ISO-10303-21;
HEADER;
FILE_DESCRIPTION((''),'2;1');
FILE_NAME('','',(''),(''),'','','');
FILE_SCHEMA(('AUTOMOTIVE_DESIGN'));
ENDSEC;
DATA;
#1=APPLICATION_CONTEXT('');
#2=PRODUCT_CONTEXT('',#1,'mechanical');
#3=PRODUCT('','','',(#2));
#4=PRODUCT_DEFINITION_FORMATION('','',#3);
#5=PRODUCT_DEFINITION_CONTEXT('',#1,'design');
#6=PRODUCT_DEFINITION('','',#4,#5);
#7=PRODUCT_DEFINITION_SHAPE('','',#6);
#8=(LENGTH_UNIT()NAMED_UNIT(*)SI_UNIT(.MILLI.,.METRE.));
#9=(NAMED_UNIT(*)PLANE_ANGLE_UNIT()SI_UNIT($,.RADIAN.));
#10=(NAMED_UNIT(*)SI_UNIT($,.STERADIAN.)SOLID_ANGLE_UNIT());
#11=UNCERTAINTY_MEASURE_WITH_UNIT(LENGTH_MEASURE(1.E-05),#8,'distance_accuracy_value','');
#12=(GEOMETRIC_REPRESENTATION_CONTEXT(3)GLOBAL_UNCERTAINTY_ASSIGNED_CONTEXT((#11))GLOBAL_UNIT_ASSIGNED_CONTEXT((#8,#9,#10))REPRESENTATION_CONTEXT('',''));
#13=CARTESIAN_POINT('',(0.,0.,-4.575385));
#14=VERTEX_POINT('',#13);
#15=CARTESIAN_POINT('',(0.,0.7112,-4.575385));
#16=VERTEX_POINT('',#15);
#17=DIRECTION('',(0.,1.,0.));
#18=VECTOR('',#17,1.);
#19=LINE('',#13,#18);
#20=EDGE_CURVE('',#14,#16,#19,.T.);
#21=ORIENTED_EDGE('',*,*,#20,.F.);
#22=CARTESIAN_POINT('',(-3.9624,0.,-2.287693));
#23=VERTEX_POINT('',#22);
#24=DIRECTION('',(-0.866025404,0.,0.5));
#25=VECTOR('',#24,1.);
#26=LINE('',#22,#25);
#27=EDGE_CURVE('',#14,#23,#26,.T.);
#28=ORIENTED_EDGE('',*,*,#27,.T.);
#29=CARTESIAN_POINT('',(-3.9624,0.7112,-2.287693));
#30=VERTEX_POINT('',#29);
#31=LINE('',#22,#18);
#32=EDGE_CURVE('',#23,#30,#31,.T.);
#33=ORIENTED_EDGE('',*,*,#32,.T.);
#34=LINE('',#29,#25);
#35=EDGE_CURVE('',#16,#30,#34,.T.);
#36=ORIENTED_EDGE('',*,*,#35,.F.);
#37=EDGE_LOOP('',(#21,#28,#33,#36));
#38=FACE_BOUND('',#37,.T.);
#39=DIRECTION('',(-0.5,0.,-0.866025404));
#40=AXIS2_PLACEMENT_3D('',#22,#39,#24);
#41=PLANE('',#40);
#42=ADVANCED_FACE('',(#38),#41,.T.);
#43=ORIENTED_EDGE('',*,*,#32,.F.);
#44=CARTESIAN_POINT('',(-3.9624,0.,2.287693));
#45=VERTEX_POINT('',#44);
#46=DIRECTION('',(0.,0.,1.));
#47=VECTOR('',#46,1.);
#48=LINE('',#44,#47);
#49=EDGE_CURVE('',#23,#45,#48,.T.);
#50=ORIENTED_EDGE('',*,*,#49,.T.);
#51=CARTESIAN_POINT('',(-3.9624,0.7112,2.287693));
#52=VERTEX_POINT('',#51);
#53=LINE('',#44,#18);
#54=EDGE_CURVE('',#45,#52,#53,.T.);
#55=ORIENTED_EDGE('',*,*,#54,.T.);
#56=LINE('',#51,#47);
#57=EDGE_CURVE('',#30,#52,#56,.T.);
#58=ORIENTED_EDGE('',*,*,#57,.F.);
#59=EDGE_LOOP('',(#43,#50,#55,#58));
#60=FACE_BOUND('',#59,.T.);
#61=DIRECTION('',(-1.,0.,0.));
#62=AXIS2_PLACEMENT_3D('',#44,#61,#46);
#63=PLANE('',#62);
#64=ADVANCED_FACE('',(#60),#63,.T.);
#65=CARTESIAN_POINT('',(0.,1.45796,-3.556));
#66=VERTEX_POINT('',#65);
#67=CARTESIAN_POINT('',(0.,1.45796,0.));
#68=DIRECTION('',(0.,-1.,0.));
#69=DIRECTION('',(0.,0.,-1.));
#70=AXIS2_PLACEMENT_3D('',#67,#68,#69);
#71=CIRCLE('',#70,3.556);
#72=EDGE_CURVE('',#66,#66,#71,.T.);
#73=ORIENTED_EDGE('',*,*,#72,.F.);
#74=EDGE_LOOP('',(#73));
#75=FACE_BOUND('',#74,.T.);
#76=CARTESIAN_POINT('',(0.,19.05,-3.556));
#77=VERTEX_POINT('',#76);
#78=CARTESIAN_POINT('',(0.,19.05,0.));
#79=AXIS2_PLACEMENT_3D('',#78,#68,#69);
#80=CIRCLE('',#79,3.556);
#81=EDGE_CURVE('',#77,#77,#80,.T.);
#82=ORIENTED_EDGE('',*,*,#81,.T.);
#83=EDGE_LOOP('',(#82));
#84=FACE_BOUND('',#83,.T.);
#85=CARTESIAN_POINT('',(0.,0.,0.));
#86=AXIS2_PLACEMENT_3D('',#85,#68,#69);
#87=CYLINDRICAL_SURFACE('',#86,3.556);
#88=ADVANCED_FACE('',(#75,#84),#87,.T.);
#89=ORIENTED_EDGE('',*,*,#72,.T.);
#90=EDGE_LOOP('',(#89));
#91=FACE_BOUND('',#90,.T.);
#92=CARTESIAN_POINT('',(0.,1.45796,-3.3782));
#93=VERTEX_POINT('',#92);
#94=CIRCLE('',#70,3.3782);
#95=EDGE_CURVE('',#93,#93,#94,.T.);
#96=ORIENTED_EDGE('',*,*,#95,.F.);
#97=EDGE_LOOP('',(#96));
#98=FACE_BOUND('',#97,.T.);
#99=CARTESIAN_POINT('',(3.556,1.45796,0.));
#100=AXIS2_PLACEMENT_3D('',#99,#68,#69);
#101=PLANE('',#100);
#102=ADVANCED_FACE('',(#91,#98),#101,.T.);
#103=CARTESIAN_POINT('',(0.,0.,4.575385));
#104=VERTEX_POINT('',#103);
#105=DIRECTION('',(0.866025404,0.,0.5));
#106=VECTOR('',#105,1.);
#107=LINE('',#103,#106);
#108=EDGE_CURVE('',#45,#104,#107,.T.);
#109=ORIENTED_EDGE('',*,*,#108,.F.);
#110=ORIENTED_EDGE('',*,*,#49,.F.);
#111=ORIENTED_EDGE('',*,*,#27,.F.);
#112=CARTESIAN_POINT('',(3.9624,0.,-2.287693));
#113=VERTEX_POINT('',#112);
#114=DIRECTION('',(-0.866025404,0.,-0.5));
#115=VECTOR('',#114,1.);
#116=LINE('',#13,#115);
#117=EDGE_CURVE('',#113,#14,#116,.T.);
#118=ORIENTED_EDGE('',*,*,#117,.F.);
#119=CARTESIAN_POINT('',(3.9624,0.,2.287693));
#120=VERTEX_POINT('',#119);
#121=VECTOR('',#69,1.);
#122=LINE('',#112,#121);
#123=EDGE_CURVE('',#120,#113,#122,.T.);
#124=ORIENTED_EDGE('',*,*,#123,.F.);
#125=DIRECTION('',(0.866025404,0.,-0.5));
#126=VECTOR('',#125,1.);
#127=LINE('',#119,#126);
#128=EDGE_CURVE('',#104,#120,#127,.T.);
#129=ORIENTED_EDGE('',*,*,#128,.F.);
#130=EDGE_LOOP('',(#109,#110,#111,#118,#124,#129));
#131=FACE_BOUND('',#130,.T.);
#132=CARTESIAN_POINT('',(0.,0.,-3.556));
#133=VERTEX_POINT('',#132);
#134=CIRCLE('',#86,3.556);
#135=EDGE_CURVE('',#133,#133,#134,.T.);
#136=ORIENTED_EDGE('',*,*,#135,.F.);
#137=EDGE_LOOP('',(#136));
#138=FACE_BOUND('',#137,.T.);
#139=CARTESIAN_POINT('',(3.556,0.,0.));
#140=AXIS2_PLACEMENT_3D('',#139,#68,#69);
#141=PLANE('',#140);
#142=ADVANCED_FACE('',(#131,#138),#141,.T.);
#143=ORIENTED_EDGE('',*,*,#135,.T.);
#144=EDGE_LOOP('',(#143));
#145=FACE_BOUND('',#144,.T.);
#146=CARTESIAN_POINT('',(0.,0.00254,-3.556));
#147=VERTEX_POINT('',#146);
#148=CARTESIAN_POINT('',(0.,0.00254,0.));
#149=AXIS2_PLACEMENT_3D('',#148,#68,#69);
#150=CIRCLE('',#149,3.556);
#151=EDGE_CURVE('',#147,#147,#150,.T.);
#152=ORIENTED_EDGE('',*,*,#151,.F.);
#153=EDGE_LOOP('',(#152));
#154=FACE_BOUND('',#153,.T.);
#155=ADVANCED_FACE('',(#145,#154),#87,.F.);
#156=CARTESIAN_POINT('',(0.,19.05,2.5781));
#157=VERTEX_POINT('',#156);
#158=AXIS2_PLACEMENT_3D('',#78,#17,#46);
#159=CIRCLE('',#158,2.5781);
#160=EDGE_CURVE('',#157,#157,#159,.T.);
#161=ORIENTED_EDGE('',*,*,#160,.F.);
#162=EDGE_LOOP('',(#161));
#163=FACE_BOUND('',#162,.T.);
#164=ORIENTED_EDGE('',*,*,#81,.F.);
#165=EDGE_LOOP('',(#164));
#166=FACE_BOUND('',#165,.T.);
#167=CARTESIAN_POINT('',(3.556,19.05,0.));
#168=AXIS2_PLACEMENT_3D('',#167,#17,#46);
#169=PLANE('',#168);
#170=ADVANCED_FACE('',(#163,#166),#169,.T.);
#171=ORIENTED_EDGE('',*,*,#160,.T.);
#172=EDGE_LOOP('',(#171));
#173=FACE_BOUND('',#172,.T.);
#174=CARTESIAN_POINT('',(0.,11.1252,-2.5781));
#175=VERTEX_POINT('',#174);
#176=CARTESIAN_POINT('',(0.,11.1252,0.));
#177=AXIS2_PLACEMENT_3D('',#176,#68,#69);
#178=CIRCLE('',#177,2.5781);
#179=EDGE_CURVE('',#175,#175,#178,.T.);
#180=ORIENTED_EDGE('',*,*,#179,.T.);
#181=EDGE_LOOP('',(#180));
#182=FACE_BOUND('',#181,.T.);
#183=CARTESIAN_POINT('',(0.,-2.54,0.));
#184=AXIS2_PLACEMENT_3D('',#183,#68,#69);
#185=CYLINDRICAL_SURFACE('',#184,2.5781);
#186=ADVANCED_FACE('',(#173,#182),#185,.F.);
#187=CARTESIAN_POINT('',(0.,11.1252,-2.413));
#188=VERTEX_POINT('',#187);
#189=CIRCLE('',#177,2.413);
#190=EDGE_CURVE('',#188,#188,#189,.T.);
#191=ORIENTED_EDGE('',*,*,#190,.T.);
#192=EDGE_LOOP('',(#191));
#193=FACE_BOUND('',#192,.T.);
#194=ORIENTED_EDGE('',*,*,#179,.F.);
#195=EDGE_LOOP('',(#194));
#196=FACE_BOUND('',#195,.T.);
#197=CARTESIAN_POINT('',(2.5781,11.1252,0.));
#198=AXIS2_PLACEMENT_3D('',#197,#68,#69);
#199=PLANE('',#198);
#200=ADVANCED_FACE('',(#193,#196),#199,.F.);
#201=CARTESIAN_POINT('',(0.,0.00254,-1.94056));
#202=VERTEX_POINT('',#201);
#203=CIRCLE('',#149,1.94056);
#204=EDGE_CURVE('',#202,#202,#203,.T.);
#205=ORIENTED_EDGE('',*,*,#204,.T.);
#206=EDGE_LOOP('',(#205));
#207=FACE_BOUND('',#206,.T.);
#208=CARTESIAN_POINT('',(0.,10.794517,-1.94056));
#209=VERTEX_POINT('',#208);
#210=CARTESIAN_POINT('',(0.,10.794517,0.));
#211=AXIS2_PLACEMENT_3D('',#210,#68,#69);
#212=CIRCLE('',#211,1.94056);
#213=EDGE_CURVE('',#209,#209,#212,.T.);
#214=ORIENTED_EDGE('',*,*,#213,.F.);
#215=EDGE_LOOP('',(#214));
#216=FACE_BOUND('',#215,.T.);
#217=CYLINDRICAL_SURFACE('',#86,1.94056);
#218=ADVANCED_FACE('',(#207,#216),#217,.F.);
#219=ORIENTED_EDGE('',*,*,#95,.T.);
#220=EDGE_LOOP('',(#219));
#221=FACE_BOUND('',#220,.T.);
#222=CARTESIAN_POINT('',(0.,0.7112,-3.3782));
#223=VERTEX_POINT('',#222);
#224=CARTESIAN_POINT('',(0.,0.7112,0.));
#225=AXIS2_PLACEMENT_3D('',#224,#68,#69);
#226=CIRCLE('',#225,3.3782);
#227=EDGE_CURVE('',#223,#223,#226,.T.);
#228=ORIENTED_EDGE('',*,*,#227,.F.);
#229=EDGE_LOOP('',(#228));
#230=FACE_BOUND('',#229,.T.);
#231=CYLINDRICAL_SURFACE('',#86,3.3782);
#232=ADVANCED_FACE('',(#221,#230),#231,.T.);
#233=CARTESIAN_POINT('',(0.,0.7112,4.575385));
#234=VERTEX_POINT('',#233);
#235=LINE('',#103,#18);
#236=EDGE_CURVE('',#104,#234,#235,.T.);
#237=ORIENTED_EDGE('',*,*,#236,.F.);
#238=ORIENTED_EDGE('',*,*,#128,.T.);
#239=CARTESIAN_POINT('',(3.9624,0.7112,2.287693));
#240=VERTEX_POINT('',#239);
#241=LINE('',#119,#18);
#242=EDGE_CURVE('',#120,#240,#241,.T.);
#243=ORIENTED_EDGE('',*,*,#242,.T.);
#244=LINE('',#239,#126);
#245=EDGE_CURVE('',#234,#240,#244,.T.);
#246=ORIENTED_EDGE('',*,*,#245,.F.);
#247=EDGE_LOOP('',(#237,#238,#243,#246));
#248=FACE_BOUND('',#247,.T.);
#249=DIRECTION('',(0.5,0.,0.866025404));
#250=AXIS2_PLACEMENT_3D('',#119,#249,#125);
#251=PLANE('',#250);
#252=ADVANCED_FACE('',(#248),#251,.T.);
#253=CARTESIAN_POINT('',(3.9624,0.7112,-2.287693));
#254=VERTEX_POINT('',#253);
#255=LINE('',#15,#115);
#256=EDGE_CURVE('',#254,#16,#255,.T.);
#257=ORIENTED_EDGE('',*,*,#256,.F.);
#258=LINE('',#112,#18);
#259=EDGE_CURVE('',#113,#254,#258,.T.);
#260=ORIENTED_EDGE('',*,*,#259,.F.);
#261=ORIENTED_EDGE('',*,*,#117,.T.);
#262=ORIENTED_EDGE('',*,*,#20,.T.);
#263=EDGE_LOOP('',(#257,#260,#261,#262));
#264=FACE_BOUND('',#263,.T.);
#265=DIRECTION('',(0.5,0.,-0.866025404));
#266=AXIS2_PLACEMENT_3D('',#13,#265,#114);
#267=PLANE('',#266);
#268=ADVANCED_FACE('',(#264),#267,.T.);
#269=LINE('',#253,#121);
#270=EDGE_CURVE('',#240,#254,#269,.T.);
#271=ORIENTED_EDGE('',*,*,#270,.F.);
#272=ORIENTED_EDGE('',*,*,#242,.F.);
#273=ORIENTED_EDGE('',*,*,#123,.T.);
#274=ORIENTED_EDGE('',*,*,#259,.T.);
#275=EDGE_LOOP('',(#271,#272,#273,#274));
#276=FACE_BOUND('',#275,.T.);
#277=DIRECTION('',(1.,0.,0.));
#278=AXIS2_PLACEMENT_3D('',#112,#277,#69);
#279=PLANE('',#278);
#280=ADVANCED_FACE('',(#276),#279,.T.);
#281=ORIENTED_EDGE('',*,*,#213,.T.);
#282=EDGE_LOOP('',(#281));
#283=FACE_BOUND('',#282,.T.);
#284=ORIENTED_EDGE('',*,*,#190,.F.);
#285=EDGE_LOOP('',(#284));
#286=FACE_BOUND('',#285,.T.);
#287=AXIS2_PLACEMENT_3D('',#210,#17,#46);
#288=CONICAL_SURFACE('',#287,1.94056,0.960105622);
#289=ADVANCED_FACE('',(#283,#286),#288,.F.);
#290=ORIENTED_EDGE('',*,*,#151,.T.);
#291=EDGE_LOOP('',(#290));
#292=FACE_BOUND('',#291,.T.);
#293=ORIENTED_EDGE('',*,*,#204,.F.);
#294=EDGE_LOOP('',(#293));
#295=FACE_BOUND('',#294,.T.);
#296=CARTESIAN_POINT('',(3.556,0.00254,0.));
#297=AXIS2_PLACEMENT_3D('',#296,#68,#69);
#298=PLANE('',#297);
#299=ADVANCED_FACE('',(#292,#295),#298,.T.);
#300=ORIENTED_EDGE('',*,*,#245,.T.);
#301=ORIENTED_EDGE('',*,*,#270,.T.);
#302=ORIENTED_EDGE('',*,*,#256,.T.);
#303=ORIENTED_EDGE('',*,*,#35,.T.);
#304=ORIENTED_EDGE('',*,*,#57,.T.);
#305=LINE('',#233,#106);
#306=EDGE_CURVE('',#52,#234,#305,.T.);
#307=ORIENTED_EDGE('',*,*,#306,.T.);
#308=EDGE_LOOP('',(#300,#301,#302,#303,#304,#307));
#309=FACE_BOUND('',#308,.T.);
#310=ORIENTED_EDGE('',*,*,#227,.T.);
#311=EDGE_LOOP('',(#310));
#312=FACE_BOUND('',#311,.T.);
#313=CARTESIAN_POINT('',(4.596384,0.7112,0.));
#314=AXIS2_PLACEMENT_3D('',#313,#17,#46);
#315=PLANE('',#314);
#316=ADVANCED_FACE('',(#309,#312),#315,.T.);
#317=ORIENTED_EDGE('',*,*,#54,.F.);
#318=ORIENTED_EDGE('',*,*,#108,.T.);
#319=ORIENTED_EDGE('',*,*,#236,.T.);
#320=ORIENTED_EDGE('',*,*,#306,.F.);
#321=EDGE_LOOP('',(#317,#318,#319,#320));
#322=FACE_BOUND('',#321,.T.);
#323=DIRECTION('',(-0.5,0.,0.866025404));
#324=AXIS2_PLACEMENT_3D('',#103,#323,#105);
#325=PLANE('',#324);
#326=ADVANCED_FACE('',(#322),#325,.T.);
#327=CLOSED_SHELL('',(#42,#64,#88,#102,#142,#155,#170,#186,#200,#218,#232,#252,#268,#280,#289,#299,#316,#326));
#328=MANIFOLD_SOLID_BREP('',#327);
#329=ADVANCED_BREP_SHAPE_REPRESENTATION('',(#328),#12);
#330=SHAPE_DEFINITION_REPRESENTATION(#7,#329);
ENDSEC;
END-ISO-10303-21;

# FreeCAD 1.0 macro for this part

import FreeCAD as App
import Part
import Sketcher
Q = App.Units.Quantity

doc = App.newDocument("Part")
body = doc.addObject("PartDesign::Body", "Body")

# Sketch on XY plane
sketch1 = body.newObject("Sketcher::SketchObject", "Sketch")
sketch1.AttachmentSupport = (doc.getObject("XY_Plane"), [""])
sketch1.MapMode = "FlatFace"
sketch1.addGeometry([
    Part.LineSegment(App.Vector(3.556, 0, 0), App.Vector(4.5964, 0, 0)),  # 0
    Part.LineSegment(App.Vector(4.5964, 0, 0), App.Vector(4.5964, 0.7112, 0)),  # 1
    Part.LineSegment(App.Vector(4.5964, 0.7112, 0), App.Vector(3.3782, 0.7112, 0)),  # 2
    Part.LineSegment(App.Vector(3.3782, 0.7112, 0), App.Vector(3.3782, 1.458, 0)),  # 3
    Part.LineSegment(App.Vector(3.3782, 1.458, 0), App.Vector(3.556, 1.458, 0)),  # 4
    Part.LineSegment(App.Vector(3.556, 1.458, 0), App.Vector(3.556, 19.05, 0)),  # 5
    Part.LineSegment(App.Vector(3.556, 19.05, 0), App.Vector(1.9406, 19.05, 0)),  # 6
    Part.LineSegment(App.Vector(1.9406, 19.05, 0), App.Vector(1.9406, 0.0051, 0)),  # 7
    Part.LineSegment(App.Vector(1.9406, 0.0051, 0), App.Vector(0, 0.0051, 0)),  # 8
    Part.LineSegment(App.Vector(0, 0.0051, 0), App.Vector(0, 0.0025, 0)),  # 9
    Part.LineSegment(App.Vector(0, 0.0025, 0), App.Vector(3.556, 0.0025, 0)),  # 10
    Part.LineSegment(App.Vector(3.556, 0.0025, 0), App.Vector(3.556, 0, 0)),  # 11
], False)
sketch1.addConstraint([
    Sketcher.Constraint("Coincident", 0, 2, 1, 1),
    Sketcher.Constraint("Coincident", 1, 2, 2, 1),
    Sketcher.Constraint("Coincident", 2, 2, 3, 1),
    Sketcher.Constraint("Coincident", 3, 2, 4, 1),
    Sketcher.Constraint("Coincident", 4, 2, 5, 1),
    Sketcher.Constraint("Coincident", 5, 2, 6, 1),
    Sketcher.Constraint("Coincident", 6, 2, 7, 1),
    Sketcher.Constraint("Coincident", 7, 2, 8, 1),
    Sketcher.Constraint("Coincident", 8, 2, 9, 1),
    Sketcher.Constraint("Coincident", 9, 2, 10, 1),
    Sketcher.Constraint("Coincident", 10, 2, 11, 1),
    Sketcher.Constraint("Coincident", 11, 2, 0, 1),
    Sketcher.Constraint("Horizontal", 0),
    Sketcher.Constraint("Vertical", 1),
    Sketcher.Constraint("Horizontal", 2),
    Sketcher.Constraint("Vertical", 3),
    Sketcher.Constraint("Horizontal", 4),
    Sketcher.Constraint("Vertical", 5),
    Sketcher.Constraint("Horizontal", 6),
    Sketcher.Constraint("Vertical", 7),
    Sketcher.Constraint("Horizontal", 8),
    Sketcher.Constraint("Vertical", 9),
    Sketcher.Constraint("Horizontal", 10),
    Sketcher.Constraint("Vertical", 11),
    Sketcher.Constraint("PointOnObject", 0, 2, -1),
    Sketcher.Constraint("PointOnObject", 8, 2, -2),
    Sketcher.Constraint("Vertical", 5, 2, 10, 2),
    Sketcher.Constraint("Equal", 9, 11),
    Sketcher.Constraint("DistanceX", 10, 1, 10, 2, Q("0.14 in")),
    Sketcher.Constraint("DistanceX", 4, 1, 4, 2, Q("0.007 in")),
    Sketcher.Constraint("DistanceY", 1, 1, 1, 2, Q("0.028 in")),
    Sketcher.Constraint("DistanceY", -1, 1, 5, 2, Q("0.75 in")),
    Sketcher.Constraint("DistanceX", 6, 2, 6, 1, Q("0.0636 in")),
    Sketcher.Constraint("DistanceY", 3, 1, 3, 2, Q("0.0294 in")),
    Sketcher.Constraint("DistanceY", 7, 2, 7, 1, Q("0.7498 in")),
    Sketcher.Constraint("DistanceX", 0, 1, 0, 2, 1.040384),
])
revolution = body.newObject("PartDesign::Revolution", "Revolution")
revolution.Profile = sketch1
revolution.ReferenceAxis = (sketch1, ["V_Axis"])
revolution.Angle = 360

# Sketch on XY plane
sketch2 = body.newObject("Sketcher::SketchObject", "Sketch001")
sketch2.AttachmentSupport = (doc.getObject("XY_Plane"), [""])
sketch2.MapMode = "FlatFace"
sketch2.addGeometry([
    Part.LineSegment(App.Vector(1.9, -4, 0), App.Vector(1.9, 19.1, 0)),
    Part.LineSegment(App.Vector(1.9, 19.1, 0), App.Vector(0, 19.1, 0)),
    Part.LineSegment(App.Vector(0, 19.1, 0), App.Vector(0, -4.8, 0)),
    Part.LineSegment(App.Vector(0, -4.8, 0), App.Vector(1.9, -4, 0)),
], False)
sketch2.addConstraint([
    Sketcher.Constraint("Coincident", 0, 2, 1, 1),
    Sketcher.Constraint("Coincident", 1, 2, 2, 1),
    Sketcher.Constraint("Coincident", 2, 2, 3, 1),
    Sketcher.Constraint("Coincident", 3, 2, 0, 1),
    Sketcher.Constraint("Vertical", 0),
    Sketcher.Constraint("Horizontal", 1),
    Sketcher.Constraint("Vertical", 2),
    Sketcher.Constraint("PointOnObject", 1, 2, -2),
    Sketcher.Constraint("Angle", 3, Q("22.5 deg")),
    Sketcher.Constraint("DistanceY", -1, 1, 0, 2, Q("0.75 in")),
    Sketcher.Constraint("DistanceX", 1, 2, 1, 1, Q("0.0764 in")),
    Sketcher.Constraint("DistanceY", 0, 1, 0, 2, Q("0.9058 in")),
])
groove = body.newObject("PartDesign::Groove", "Groove")
groove.Profile = sketch2
groove.ReferenceAxis = (sketch2, ["V_Axis"])
groove.Angle = 360

# Sketch on XY plane
sketch3 = body.newObject("Sketcher::SketchObject", "Sketch002")
sketch3.AttachmentSupport = (doc.getObject("XY_Plane"), [""])
sketch3.MapMode = "FlatFace"
sketch3.addGeometry([
    Part.LineSegment(App.Vector(2.58, 11.13, 0), App.Vector(2.58, 19.3, 0)),  # 0
    Part.LineSegment(App.Vector(2.58, 19.3, 0), App.Vector(1.94, 19.3, 0)),  # 1
    Part.LineSegment(App.Vector(1.94, 19.3, 0), App.Vector(1.94, 10.79, 0)),  # 2
    Part.LineSegment(App.Vector(1.94, 10.79, 0), App.Vector(2.41, 11.13, 0)),  # 3
    Part.LineSegment(App.Vector(2.41, 11.13, 0), App.Vector(2.58, 11.13, 0)),  # 4
], False)
sketch3.addConstraint([
    Sketcher.Constraint("Coincident", 0, 2, 1, 1),
    Sketcher.Constraint("Coincident", 1, 2, 2, 1),
    Sketcher.Constraint("Coincident", 2, 2, 3, 1),
    Sketcher.Constraint("Coincident", 3, 2, 4, 1),
    Sketcher.Constraint("Coincident", 4, 2, 0, 1),
    Sketcher.Constraint("Vertical", 0),
    Sketcher.Constraint("Horizontal", 1),
    Sketcher.Constraint("Vertical", 2),
    Sketcher.Constraint("Horizontal", 4),
    Sketcher.Constraint("DistanceY", 0, 1, 0, 2, Q("0.322 in")),
    Sketcher.Constraint("DistanceY", -1, 1, 0, 2, Q("0.76 in")),
    Sketcher.Constraint("Angle", 3, Q("34.99 deg")),
    Sketcher.Constraint("DistanceX", 1, 2, 1, 1, Q("0.0251 in")),
    Sketcher.Constraint("DistanceX", 4, 1, 4, 2, Q("0.0065 in")),
    Sketcher.Constraint("DistanceX", -1, 1, 3, 2, Q("0.095 in")),
])
groove2 = body.newObject("PartDesign::Groove", "Groove001")
groove2.Profile = sketch3
groove2.ReferenceAxis = (sketch3, ["V_Axis"])
groove2.Angle = 360

# Sketch on XZ plane
sketch4 = body.newObject("Sketcher::SketchObject", "Sketch003")
sketch4.AttachmentSupport = (doc.getObject("XZ_Plane"), [""])
sketch4.MapMode = "FlatFace"
sketch4.AttachmentOffset = App.Placement(App.Vector(0, 0, -0.028 * 25.4), App.Rotation())
sketch4.addGeometry([
    Part.Circle(App.Vector(0, 0, 0), App.Vector(0, 0, 1), 4.6),  # 0
    Part.LineSegment(App.Vector(4, 2.3, 0), App.Vector(0, 4.6, 0)),  # 1
    Part.LineSegment(App.Vector(0, 4.6, 0), App.Vector(-4, 2.3, 0)),  # 2
    Part.LineSegment(App.Vector(-4, 2.3, 0), App.Vector(-4, -2.3, 0)),  # 3
    Part.LineSegment(App.Vector(-4, -2.3, 0), App.Vector(0, -4.6, 0)),  # 4
    Part.LineSegment(App.Vector(0, -4.6, 0), App.Vector(4, -2.3, 0)),  # 5
    Part.LineSegment(App.Vector(4, -2.3, 0), App.Vector(4, 2.3, 0)),  # 6
], False)
sketch4.addConstraint([
    Sketcher.Constraint("Coincident", 1, 2, 2, 1),
    Sketcher.Constraint("Coincident", 2, 2, 3, 1),
    Sketcher.Constraint("Coincident", 3, 2, 4, 1),
    Sketcher.Constraint("Coincident", 4, 2, 5, 1),
    Sketcher.Constraint("Coincident", 5, 2, 6, 1),
    Sketcher.Constraint("Coincident", 6, 2, 1, 1),
    Sketcher.Constraint("Vertical", 3),
    Sketcher.Constraint("Vertical", 6),
    Sketcher.Constraint("Coincident", 0, 3, -1, 1),
    Sketcher.Constraint("Symmetric", 1, 2, 4, 2, -1, 1),
    Sketcher.Constraint("Symmetric", 2, 2, 5, 2, -1, 1),
    Sketcher.Constraint("PointOnObject", 1, 2, -2),
    Sketcher.Constraint("Parallel", 1, 4),
    Sketcher.Constraint("Horizontal", 3, 2, 5, 2),
    Sketcher.Constraint("Angle", 1, Q("150 deg")),
    Sketcher.Constraint("DistanceX", 2, 2, -1, 1, Q("0.156 in")),
    Sketcher.Constraint("Diameter", 0, 9.218168),
    Sketcher.Constraint("DistanceY", 3, 2, 1, 2, Q("0.2701999 in")),
])
pocket1 = body.newObject("PartDesign::Pocket", "Pocket")
pocket1.Profile = sketch4
pocket1.Length = Q("0.028 in")
pocket1.Reversed = True

doc.recompute()
